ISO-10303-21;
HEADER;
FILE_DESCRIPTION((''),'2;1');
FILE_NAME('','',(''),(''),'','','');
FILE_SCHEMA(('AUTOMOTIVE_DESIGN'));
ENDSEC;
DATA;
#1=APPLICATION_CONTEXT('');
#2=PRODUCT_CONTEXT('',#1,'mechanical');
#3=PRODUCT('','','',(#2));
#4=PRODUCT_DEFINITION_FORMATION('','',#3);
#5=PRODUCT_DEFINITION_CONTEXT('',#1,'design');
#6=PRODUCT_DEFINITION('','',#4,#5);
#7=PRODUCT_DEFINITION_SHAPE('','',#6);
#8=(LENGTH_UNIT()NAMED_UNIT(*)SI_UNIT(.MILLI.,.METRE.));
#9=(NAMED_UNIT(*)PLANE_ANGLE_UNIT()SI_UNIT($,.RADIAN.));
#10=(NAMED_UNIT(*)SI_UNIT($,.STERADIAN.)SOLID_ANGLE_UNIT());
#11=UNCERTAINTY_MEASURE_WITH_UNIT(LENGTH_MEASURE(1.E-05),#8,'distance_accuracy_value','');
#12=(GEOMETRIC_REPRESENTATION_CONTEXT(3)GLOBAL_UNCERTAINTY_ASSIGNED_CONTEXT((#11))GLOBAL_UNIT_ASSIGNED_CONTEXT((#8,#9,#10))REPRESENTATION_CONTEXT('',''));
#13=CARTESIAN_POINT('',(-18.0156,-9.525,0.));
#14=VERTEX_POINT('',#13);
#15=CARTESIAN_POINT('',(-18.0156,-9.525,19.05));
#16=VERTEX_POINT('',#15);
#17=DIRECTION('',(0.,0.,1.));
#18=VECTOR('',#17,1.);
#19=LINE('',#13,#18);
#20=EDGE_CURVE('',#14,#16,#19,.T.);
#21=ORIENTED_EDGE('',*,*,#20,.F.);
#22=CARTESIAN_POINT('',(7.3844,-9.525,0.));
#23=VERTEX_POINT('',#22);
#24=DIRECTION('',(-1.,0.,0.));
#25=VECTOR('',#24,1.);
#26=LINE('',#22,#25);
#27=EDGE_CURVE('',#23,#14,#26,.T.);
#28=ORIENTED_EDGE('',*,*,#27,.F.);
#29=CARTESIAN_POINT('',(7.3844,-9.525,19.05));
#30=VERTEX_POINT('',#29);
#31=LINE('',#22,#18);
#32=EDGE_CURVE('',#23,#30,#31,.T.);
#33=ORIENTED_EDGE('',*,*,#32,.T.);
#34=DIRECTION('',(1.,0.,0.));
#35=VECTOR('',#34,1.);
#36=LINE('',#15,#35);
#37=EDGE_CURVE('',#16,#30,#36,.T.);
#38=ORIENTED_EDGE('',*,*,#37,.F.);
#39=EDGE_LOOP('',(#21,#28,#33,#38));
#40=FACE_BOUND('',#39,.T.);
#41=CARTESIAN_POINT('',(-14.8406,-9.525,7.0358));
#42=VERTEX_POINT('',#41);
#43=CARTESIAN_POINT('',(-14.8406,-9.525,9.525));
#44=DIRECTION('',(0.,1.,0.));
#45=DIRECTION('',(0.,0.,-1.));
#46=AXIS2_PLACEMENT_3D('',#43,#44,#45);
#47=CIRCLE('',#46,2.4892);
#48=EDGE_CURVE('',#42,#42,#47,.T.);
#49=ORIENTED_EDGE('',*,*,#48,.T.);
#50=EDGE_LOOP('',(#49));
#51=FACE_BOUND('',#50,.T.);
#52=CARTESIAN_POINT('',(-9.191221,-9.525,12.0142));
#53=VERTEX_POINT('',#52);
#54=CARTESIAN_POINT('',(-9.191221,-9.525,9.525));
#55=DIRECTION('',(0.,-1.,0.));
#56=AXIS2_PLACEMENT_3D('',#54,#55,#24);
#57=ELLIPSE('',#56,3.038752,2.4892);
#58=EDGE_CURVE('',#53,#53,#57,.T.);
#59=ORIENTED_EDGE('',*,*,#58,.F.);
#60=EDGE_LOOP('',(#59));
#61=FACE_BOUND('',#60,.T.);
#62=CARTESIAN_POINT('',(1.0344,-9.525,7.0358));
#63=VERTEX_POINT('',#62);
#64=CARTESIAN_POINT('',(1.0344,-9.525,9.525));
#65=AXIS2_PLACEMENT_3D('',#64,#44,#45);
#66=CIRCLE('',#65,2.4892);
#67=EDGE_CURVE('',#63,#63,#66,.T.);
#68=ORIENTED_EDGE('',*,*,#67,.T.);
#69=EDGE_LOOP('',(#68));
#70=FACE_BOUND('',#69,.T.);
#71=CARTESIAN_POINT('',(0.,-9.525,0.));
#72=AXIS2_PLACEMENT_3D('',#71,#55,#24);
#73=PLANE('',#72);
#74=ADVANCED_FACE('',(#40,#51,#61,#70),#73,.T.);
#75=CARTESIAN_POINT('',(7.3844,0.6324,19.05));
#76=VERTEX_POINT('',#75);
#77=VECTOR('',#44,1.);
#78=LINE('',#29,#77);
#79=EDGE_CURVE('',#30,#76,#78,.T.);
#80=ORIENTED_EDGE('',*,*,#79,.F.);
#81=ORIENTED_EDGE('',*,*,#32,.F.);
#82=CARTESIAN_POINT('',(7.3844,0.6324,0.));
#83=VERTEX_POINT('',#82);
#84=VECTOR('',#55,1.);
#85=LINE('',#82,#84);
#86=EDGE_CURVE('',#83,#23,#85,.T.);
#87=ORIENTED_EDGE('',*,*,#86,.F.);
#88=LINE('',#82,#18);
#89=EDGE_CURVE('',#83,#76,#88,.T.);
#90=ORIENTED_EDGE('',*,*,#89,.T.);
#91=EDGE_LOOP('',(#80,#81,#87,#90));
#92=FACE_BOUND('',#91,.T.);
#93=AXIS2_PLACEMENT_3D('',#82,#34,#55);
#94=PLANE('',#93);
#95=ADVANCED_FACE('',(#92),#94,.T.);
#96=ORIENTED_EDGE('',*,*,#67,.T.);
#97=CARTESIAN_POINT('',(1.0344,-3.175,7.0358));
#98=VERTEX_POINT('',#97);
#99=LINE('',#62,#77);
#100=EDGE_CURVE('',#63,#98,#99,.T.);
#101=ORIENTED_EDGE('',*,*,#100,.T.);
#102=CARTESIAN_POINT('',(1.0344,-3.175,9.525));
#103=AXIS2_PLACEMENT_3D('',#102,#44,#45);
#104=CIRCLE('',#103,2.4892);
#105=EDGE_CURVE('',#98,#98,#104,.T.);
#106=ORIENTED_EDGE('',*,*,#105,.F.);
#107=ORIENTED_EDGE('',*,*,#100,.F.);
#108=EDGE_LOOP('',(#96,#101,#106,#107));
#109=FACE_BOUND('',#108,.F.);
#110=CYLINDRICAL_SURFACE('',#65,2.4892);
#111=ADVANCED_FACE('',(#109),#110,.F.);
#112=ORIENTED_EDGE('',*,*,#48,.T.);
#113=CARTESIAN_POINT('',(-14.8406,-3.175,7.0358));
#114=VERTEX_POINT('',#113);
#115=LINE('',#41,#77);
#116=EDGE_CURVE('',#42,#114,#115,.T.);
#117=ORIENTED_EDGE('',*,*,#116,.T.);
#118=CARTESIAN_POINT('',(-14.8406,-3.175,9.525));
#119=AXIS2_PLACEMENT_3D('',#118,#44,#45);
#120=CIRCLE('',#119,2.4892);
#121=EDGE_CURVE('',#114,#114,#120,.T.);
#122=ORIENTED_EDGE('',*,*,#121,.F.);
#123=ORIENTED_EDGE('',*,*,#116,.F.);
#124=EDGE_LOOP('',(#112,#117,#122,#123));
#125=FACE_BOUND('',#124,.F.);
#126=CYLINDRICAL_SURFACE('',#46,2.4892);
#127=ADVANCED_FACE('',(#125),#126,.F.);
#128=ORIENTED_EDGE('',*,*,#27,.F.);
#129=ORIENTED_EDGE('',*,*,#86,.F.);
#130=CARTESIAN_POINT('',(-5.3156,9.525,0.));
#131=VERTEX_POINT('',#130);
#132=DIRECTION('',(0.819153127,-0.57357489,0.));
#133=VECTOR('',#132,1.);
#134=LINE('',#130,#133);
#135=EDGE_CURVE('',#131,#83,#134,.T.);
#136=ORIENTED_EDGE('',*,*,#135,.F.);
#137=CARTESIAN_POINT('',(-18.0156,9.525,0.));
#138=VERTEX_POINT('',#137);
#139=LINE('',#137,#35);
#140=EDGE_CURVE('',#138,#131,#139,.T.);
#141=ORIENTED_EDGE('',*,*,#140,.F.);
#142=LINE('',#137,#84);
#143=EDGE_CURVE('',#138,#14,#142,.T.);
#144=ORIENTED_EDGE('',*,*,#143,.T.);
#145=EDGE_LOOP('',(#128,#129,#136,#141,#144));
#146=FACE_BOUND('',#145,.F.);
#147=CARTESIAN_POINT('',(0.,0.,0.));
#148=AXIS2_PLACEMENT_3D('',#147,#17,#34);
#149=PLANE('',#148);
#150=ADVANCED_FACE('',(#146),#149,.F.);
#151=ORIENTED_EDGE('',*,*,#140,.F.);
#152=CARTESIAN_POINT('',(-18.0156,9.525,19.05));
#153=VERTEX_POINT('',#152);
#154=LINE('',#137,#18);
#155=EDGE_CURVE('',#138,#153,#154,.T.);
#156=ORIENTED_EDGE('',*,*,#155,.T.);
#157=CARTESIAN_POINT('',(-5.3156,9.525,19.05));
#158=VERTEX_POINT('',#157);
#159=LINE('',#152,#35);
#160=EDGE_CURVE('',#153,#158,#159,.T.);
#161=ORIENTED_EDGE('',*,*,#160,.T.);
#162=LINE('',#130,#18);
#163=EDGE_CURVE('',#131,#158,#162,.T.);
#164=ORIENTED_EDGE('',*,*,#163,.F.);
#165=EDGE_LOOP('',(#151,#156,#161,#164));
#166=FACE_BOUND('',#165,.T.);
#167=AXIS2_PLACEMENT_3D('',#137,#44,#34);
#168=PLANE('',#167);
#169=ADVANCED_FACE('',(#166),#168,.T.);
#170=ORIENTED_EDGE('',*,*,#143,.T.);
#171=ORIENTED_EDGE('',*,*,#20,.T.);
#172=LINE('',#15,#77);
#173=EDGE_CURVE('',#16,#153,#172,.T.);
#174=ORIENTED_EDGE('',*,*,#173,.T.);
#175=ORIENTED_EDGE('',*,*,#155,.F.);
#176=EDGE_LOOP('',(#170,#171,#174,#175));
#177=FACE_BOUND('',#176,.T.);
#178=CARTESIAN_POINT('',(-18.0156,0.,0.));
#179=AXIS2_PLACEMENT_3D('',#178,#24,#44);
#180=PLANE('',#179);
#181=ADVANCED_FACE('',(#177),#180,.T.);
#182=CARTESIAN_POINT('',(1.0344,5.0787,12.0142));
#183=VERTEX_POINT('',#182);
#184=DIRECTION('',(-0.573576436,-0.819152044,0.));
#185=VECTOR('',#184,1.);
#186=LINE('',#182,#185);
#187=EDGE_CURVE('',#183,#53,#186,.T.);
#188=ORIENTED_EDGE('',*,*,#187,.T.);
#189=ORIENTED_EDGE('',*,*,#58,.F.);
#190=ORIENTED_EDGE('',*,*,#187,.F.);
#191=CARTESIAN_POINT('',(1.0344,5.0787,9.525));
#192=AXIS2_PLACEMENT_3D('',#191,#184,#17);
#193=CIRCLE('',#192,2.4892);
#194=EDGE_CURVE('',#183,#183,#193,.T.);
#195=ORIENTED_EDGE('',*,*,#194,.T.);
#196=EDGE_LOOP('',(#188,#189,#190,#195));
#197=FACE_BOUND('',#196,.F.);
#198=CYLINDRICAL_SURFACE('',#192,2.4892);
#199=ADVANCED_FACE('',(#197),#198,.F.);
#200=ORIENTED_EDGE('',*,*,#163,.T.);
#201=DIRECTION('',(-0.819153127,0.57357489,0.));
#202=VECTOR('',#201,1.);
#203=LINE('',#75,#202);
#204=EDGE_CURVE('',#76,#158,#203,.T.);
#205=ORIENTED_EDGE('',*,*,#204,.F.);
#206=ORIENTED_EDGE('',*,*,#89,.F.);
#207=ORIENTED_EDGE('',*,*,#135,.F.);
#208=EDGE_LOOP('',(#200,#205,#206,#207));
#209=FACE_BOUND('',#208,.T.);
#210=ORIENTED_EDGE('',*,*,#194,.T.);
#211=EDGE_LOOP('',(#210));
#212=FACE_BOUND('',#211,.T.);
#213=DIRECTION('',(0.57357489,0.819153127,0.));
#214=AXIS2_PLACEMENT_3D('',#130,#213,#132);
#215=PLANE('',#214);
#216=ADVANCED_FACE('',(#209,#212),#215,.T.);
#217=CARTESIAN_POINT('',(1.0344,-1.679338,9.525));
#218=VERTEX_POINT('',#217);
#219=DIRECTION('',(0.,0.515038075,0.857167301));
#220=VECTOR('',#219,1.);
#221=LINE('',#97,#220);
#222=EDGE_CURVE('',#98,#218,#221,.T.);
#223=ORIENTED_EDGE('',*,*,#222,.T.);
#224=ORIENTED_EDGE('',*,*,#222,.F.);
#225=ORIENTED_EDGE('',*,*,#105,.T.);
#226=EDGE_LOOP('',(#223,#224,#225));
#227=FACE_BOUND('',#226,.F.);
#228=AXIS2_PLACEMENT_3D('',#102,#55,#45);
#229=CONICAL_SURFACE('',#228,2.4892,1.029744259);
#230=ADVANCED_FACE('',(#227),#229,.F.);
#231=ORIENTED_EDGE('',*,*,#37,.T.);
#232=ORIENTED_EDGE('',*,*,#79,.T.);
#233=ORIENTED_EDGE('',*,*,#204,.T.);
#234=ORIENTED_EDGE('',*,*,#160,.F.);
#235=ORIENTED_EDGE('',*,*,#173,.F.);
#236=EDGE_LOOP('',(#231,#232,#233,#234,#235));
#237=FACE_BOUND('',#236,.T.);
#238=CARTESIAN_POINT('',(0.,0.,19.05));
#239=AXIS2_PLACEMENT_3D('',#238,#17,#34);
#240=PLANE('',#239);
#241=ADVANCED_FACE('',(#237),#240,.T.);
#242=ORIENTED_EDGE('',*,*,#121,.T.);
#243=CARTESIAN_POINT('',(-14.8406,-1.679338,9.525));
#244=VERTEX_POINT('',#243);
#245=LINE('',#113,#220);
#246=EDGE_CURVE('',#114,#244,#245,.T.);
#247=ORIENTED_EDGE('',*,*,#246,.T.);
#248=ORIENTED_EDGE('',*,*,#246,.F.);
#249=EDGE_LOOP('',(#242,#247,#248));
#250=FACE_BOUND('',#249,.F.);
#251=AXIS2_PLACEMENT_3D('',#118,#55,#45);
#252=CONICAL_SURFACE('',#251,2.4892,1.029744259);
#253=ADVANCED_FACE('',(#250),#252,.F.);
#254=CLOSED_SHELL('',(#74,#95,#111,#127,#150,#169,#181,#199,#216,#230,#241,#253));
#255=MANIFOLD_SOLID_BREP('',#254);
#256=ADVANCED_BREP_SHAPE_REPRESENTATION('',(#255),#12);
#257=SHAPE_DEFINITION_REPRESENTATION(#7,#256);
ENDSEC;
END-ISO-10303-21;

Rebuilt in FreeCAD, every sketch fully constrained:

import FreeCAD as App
import Part
import Sketcher
from FreeCAD import Vector
Q = App.Units.Quantity


def add_polygon(sketch, points):
    """Adds a closed chain of lines whose ends are joined by coincident constraints."""
    first, n = sketch.GeometryCount, len(points)
    for a, b in zip(points, points[1:] + points[:1]):
        sketch.addGeometry(Part.LineSegment(App.Vector(*a, 0), App.Vector(*b, 0)), False)
    for i in range(n):
        sketch.addConstraint(Sketcher.Constraint("Coincident", first + i, 2, first + (i + 1) % n, 1))

doc = App.newDocument("Part")
body = doc.addObject("PartDesign::Body", "Body")

sketch1 = body.newObject("Sketcher::SketchObject", "Sketch")
sketch1.AttachmentSupport = (doc.getObject("XY_Plane"), [""])
sketch1.MapMode = "FlatFace"
add_polygon(sketch1, [(-18.0156, 9.525), (-18.0156, -9.525), (7.3844, -9.525), (7.3844, 0.6324), (-5.3156, 9.525)])
sketch1.addConstraint([
    Sketcher.Constraint("Vertical", 0),
    Sketcher.Constraint("Horizontal", 1),
    Sketcher.Constraint("Vertical", 2),
    Sketcher.Constraint("Horizontal", 4),
    Sketcher.Constraint("DistanceX", 1, 1, 1, 2, Q("1 in")),
    Sketcher.Constraint("DistanceY", 0, 2, 0, 1, Q("0.75 in")),
    Sketcher.Constraint("DistanceX", 4, 2, 4, 1, Q("0.5 in")),
    Sketcher.Constraint("Angle", 3, Q("145 deg")),
    Sketcher.Constraint("DistanceY", 0, 2, -1, 1, Q("0.375 in")),
    Sketcher.Constraint("DistanceX", 0, 2, -1, 1, Q("18.0156 mm")),
])
pad1 = body.newObject("PartDesign::Pad", "Pad")
pad1.Profile = sketch1
pad1.Length = Q("0.75 in")

sketch2 = body.newObject("Sketcher::SketchObject", "Sketch001")
sketch2.Placement = App.Placement(Vector(2.726516, 3.893868, 0), App.Rotation(Vector(-0.819152044, 0.573576436, 0), Vector(0, 0, 0.999999999), Vector(0.573576436, 0.819152044, 0), "ZXY"))
sketch2.addGeometry(Part.Circle(Vector(2.065692, 9.525, 0), Vector(0, 0, 1), 2.4892), False)
sketch2.addConstraint([
    Sketcher.Constraint("Diameter", 0, Q("0.196 in")),
    Sketcher.Constraint("DistanceY", -1, 1, 0, 3, Q("0.375 in")),
    Sketcher.Constraint("DistanceX", -1, 1, 0, 3, Q("2.0657 mm")),
])
doc.recompute()
hole = body.newObject("PartDesign::Hole", "Hole")
hole.Profile = sketch2
hole.ThreadType = "None"
hole.Diameter = Q("0.196 in")
hole.DepthType = "ThroughAll"

sketch3 = body.newObject("Sketcher::SketchObject", "Sketch002")
sketch3.AttachmentSupport = (doc.getObject("XZ_Plane"), [""])
sketch3.MapMode = "FlatFace"
sketch3.AttachmentOffset = App.Placement(Vector(0, 0, 0.375 * 25.4), App.Rotation())
sketch3.addGeometry([
    Part.Circle(Vector(1.0344, 9.525, 0), Vector(0, 0, 1), 2.4892),
    Part.Circle(Vector(-14.8406, 9.525, 0), Vector(0, 0, 1), 2.4892),
], False)
sketch3.addConstraint([
    Sketcher.Constraint("Equal", 0, 1),
    Sketcher.Constraint("Horizontal", 0, 3, 1, 3),
    Sketcher.Constraint("Diameter", 0, Q("0.196 in")),
    Sketcher.Constraint("DistanceY", -1, 1, 0, 3, Q("0.375 in")),
    Sketcher.Constraint("DistanceX", 1, 3, 0, 3, Q("0.625 in")),
    Sketcher.Constraint("DistanceX", -1, 1, 0, 3, Q("1.0344 mm")),
])
doc.recompute()
hole2 = body.newObject("PartDesign::Hole", "Hole001")
hole2.Profile = sketch3
hole2.ThreadType = "None"
hole2.Diameter = Q("0.196 in")
hole2.DepthType = "Dimension"
hole2.Depth = Q("0.25 in")
hole2.DrillPoint = "Angled"
hole2.DrillPointAngle = 118

doc.recompute()
